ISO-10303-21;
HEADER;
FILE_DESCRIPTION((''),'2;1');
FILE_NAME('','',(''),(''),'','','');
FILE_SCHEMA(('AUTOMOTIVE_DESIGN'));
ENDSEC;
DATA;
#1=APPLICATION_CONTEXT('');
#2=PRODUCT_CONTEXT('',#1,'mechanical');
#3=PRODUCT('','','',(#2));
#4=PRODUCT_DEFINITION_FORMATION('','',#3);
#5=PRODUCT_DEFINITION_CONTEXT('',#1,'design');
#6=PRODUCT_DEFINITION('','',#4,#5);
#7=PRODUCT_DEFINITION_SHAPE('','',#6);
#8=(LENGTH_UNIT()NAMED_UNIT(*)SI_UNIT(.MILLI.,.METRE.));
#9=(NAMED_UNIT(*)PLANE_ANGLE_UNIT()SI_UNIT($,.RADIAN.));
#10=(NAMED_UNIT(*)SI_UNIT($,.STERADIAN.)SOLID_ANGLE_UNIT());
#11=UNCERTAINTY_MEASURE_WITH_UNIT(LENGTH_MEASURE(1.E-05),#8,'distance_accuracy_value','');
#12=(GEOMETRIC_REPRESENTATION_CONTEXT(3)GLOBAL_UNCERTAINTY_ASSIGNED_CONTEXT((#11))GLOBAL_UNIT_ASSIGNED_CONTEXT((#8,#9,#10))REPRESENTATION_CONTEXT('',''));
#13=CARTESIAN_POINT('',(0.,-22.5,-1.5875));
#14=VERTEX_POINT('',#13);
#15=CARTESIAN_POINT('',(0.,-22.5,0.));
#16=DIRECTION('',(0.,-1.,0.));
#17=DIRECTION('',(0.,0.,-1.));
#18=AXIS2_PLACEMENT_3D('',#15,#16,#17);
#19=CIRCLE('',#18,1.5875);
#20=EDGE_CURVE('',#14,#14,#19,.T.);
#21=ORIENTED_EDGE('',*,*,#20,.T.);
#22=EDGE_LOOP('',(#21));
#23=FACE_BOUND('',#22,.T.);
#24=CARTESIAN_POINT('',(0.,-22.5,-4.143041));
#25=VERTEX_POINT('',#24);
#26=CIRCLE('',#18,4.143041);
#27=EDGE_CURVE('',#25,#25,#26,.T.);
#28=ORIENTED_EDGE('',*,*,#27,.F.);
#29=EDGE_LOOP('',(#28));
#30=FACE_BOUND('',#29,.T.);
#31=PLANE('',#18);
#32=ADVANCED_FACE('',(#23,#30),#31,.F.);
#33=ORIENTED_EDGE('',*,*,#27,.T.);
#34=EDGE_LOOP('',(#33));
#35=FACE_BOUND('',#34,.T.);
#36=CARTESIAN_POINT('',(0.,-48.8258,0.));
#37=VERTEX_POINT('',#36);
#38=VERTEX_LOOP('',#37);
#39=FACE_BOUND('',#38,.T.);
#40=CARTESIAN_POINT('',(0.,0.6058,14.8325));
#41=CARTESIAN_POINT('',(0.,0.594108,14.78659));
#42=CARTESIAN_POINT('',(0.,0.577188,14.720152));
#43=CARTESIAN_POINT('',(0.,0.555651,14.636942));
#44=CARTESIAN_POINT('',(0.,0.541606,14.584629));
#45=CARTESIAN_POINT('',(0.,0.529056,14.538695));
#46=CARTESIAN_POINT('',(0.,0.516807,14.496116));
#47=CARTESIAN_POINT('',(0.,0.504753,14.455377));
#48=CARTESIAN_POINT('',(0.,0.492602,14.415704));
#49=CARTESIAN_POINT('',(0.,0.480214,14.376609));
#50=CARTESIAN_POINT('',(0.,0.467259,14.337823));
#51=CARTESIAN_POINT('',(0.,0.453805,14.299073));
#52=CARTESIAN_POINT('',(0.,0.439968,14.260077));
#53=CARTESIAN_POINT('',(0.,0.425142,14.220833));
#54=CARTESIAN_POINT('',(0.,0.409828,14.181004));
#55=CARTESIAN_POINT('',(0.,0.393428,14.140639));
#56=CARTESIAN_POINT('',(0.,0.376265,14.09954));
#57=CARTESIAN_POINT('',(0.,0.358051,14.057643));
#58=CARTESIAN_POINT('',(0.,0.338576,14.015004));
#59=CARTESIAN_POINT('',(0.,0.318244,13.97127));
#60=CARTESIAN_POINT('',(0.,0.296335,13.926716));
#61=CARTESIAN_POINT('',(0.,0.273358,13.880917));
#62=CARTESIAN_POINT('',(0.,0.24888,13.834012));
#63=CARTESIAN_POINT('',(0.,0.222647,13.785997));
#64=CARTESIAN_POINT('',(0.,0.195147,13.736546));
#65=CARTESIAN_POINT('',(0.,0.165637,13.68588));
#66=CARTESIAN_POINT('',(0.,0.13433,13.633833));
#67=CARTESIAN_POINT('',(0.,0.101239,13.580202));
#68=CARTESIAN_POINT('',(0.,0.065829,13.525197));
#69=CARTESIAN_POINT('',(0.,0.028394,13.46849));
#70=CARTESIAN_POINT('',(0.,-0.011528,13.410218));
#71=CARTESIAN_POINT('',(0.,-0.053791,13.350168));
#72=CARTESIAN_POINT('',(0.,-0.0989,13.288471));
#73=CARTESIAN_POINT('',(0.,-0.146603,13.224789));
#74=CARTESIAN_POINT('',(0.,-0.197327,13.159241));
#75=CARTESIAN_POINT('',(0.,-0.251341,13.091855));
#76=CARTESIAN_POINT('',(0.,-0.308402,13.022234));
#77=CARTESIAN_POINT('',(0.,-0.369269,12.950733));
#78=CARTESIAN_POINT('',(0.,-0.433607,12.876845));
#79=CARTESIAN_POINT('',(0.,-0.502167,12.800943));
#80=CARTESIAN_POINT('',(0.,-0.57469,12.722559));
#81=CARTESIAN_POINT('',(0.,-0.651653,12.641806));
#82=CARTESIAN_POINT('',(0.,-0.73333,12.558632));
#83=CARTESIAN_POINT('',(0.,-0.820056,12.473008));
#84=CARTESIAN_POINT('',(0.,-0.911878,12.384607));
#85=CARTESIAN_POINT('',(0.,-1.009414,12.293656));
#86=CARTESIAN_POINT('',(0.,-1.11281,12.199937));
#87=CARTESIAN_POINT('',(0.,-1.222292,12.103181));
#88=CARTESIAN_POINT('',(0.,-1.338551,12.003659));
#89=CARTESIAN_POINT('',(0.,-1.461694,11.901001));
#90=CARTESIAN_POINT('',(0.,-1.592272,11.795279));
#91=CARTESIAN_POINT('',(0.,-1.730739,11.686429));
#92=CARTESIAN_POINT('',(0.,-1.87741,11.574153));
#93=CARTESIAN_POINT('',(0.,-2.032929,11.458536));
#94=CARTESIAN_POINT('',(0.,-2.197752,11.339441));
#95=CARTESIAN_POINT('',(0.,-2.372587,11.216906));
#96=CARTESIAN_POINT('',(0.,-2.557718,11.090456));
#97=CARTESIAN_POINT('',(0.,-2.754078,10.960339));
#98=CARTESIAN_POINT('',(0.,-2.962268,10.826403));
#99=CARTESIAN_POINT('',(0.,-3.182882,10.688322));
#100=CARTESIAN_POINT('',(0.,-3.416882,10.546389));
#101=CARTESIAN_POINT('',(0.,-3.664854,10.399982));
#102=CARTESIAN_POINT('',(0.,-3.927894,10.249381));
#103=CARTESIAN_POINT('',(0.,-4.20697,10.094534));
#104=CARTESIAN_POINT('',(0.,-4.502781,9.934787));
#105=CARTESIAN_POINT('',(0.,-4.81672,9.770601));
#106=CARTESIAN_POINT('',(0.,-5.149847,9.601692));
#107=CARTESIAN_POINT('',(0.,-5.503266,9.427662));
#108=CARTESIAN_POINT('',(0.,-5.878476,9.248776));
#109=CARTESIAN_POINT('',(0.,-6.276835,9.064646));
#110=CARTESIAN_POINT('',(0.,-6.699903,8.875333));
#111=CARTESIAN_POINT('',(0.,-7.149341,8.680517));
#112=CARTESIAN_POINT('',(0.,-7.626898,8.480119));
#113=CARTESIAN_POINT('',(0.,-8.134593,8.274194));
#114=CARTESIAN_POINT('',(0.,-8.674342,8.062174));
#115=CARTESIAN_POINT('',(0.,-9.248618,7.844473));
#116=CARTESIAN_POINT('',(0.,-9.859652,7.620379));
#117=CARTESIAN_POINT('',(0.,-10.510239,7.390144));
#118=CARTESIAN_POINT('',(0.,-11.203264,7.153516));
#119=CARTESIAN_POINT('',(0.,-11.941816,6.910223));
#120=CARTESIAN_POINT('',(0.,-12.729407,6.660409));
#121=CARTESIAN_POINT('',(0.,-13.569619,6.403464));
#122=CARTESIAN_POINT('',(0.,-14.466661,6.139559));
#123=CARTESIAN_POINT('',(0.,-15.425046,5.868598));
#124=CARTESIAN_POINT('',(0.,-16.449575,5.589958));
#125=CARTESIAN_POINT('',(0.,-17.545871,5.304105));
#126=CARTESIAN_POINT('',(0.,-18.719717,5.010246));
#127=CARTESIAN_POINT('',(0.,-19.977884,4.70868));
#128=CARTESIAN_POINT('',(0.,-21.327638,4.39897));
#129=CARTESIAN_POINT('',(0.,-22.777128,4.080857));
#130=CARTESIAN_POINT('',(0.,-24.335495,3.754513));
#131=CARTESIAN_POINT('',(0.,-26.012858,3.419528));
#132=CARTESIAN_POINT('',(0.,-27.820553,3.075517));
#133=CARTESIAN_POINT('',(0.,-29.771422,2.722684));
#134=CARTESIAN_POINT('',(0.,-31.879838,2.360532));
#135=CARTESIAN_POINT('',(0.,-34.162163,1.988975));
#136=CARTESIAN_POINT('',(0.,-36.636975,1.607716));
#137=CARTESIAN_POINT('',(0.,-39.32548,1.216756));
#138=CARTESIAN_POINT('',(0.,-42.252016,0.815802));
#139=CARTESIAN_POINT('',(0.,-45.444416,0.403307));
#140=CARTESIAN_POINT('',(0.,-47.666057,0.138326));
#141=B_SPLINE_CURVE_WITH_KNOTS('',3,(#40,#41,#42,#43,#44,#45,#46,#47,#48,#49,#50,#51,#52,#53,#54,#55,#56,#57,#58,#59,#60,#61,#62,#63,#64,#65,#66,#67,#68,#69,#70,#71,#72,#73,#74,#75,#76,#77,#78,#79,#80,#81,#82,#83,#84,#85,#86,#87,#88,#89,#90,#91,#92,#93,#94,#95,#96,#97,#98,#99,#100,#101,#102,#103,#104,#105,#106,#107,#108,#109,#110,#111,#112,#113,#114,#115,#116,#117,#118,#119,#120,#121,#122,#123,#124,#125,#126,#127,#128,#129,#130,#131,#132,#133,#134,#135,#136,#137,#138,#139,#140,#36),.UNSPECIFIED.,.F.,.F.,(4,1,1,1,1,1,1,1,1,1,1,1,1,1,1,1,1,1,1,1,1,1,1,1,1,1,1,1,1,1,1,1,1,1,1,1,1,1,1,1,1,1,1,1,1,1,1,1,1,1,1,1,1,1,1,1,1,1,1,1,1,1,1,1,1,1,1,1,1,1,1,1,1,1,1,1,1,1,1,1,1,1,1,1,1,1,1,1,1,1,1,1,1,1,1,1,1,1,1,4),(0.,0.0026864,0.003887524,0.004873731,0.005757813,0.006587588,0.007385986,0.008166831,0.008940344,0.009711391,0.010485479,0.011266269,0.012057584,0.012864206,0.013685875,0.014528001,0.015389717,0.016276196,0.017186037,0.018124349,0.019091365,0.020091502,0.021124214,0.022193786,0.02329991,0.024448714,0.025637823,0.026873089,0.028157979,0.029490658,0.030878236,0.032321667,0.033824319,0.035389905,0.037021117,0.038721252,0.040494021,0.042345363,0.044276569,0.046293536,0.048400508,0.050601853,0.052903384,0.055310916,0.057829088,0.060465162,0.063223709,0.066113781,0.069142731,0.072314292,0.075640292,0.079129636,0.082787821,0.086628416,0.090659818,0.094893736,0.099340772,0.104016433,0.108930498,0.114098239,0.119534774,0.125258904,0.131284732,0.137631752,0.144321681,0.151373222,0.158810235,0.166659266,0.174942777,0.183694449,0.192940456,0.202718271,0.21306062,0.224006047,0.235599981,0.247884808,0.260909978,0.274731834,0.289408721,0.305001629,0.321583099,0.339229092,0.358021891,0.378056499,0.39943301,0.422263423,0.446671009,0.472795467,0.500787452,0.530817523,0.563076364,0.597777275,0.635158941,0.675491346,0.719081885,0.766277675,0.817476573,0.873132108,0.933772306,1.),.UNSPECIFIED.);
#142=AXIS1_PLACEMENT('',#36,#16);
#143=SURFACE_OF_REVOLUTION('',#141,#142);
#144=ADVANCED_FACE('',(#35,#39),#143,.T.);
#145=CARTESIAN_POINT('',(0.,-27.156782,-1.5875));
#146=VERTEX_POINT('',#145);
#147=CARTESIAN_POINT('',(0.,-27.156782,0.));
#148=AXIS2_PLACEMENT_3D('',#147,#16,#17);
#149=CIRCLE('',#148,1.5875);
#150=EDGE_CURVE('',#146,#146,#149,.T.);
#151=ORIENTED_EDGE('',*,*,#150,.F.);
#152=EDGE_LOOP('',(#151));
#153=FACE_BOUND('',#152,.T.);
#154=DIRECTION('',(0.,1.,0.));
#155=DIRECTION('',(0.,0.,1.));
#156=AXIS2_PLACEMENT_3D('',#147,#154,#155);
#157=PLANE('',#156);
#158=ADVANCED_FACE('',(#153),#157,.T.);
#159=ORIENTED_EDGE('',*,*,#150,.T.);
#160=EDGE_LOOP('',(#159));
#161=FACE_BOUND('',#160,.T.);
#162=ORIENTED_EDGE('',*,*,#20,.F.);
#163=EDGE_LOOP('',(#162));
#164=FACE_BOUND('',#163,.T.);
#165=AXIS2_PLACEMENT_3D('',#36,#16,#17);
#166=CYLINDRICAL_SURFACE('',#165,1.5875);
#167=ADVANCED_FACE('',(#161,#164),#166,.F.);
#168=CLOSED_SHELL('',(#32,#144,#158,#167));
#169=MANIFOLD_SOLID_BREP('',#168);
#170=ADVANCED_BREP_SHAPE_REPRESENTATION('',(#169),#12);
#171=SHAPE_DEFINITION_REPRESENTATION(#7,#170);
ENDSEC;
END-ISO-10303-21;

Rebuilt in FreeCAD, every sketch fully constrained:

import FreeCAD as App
import Part
import Sketcher
from FreeCAD import Vector
Q = App.Units.Quantity

doc = App.newDocument("Part")
body = doc.addObject("PartDesign::Body", "Body")

# Sketch on YZ plane
sketch1 = body.newObject("Sketcher::SketchObject", "Sketch")
sketch1.AttachmentSupport = (doc.getObject("YZ_Plane"), [""])
sketch1.MapMode = "FlatFace"
sketch1.addGeometry([
    Part.LineSegment(Vector(-27.156782, 1.5875, 0), Vector(-22.5, 1.5875, 0)),  # 0
    Part.LineSegment(Vector(-22.5, 1.5875, 0), Vector(-22.5, 4.143041, 0)),  # 1
    Part.BSplineCurve([Vector(-22.5, 4.143041, 0), Vector(-22.58082, 4.125564, 0), Vector(-23.179373, 3.996622, 0), Vector(-24.335495, 3.754513, 0), Vector(-26.012858, 3.419528, 0), Vector(-27.820553, 3.075517, 0), Vector(-29.771422, 2.722684, 0), Vector(-31.879838, 2.360532, 0), Vector(-34.162163, 1.988975, 0), Vector(-36.636975, 1.607716, 0), Vector(-39.32548, 1.216756, 0), Vector(-42.252016, 0.815802, 0), Vector(-45.444416, 0.403307, 0), Vector(-47.666057, 0.138326, 0), Vector(-48.8258, 0, 0)], [4, 1, 1, 1, 1, 1, 1, 1, 1, 1, 1, 1, 4], [0.496098755, 0.500787452, 0.530817523, 0.563076364, 0.597777275, 0.635158941, 0.675491346, 0.719081885, 0.766277675, 0.817476573, 0.873132108, 0.933772306, 1], False, 3, [1, 1, 1, 1, 1, 1, 1, 1, 1, 1, 1, 1, 1, 1, 1], False),  # 2
    Part.LineSegment(Vector(-48.8258, 0, 0), Vector(-27.156782, 0, 0)),  # 3
    Part.LineSegment(Vector(-27.156782, 0, 0), Vector(-27.156782, 1.5875, 0)),  # 4
], False)
sketch1.addConstraint([
    Sketcher.Constraint("Block", 2),
    Sketcher.Constraint("Coincident", 0, 2, 1, 1),
    Sketcher.Constraint("Coincident", 1, 2, 2, 1),
    Sketcher.Constraint("Coincident", 2, 2, 3, 1),
    Sketcher.Constraint("Coincident", 3, 2, 4, 1),
    Sketcher.Constraint("Coincident", 4, 2, 0, 1),
    Sketcher.Constraint("Horizontal", 0),
    Sketcher.Constraint("Vertical", 1),
    Sketcher.Constraint("Horizontal", 3),
    Sketcher.Constraint("Vertical", 4),
    Sketcher.Constraint("DistanceY", 4, 1, 4, 2, Q("0.0625 in")),
    Sketcher.Constraint("DistanceX", 0, 1, 0, 2, Q("4.656782 mm")),
])
revolution = body.newObject("PartDesign::Revolution", "Revolution")
revolution.Profile = sketch1
revolution.ReferenceAxis = (sketch1, ["H_Axis"])
revolution.Angle = 360

doc.recompute()
